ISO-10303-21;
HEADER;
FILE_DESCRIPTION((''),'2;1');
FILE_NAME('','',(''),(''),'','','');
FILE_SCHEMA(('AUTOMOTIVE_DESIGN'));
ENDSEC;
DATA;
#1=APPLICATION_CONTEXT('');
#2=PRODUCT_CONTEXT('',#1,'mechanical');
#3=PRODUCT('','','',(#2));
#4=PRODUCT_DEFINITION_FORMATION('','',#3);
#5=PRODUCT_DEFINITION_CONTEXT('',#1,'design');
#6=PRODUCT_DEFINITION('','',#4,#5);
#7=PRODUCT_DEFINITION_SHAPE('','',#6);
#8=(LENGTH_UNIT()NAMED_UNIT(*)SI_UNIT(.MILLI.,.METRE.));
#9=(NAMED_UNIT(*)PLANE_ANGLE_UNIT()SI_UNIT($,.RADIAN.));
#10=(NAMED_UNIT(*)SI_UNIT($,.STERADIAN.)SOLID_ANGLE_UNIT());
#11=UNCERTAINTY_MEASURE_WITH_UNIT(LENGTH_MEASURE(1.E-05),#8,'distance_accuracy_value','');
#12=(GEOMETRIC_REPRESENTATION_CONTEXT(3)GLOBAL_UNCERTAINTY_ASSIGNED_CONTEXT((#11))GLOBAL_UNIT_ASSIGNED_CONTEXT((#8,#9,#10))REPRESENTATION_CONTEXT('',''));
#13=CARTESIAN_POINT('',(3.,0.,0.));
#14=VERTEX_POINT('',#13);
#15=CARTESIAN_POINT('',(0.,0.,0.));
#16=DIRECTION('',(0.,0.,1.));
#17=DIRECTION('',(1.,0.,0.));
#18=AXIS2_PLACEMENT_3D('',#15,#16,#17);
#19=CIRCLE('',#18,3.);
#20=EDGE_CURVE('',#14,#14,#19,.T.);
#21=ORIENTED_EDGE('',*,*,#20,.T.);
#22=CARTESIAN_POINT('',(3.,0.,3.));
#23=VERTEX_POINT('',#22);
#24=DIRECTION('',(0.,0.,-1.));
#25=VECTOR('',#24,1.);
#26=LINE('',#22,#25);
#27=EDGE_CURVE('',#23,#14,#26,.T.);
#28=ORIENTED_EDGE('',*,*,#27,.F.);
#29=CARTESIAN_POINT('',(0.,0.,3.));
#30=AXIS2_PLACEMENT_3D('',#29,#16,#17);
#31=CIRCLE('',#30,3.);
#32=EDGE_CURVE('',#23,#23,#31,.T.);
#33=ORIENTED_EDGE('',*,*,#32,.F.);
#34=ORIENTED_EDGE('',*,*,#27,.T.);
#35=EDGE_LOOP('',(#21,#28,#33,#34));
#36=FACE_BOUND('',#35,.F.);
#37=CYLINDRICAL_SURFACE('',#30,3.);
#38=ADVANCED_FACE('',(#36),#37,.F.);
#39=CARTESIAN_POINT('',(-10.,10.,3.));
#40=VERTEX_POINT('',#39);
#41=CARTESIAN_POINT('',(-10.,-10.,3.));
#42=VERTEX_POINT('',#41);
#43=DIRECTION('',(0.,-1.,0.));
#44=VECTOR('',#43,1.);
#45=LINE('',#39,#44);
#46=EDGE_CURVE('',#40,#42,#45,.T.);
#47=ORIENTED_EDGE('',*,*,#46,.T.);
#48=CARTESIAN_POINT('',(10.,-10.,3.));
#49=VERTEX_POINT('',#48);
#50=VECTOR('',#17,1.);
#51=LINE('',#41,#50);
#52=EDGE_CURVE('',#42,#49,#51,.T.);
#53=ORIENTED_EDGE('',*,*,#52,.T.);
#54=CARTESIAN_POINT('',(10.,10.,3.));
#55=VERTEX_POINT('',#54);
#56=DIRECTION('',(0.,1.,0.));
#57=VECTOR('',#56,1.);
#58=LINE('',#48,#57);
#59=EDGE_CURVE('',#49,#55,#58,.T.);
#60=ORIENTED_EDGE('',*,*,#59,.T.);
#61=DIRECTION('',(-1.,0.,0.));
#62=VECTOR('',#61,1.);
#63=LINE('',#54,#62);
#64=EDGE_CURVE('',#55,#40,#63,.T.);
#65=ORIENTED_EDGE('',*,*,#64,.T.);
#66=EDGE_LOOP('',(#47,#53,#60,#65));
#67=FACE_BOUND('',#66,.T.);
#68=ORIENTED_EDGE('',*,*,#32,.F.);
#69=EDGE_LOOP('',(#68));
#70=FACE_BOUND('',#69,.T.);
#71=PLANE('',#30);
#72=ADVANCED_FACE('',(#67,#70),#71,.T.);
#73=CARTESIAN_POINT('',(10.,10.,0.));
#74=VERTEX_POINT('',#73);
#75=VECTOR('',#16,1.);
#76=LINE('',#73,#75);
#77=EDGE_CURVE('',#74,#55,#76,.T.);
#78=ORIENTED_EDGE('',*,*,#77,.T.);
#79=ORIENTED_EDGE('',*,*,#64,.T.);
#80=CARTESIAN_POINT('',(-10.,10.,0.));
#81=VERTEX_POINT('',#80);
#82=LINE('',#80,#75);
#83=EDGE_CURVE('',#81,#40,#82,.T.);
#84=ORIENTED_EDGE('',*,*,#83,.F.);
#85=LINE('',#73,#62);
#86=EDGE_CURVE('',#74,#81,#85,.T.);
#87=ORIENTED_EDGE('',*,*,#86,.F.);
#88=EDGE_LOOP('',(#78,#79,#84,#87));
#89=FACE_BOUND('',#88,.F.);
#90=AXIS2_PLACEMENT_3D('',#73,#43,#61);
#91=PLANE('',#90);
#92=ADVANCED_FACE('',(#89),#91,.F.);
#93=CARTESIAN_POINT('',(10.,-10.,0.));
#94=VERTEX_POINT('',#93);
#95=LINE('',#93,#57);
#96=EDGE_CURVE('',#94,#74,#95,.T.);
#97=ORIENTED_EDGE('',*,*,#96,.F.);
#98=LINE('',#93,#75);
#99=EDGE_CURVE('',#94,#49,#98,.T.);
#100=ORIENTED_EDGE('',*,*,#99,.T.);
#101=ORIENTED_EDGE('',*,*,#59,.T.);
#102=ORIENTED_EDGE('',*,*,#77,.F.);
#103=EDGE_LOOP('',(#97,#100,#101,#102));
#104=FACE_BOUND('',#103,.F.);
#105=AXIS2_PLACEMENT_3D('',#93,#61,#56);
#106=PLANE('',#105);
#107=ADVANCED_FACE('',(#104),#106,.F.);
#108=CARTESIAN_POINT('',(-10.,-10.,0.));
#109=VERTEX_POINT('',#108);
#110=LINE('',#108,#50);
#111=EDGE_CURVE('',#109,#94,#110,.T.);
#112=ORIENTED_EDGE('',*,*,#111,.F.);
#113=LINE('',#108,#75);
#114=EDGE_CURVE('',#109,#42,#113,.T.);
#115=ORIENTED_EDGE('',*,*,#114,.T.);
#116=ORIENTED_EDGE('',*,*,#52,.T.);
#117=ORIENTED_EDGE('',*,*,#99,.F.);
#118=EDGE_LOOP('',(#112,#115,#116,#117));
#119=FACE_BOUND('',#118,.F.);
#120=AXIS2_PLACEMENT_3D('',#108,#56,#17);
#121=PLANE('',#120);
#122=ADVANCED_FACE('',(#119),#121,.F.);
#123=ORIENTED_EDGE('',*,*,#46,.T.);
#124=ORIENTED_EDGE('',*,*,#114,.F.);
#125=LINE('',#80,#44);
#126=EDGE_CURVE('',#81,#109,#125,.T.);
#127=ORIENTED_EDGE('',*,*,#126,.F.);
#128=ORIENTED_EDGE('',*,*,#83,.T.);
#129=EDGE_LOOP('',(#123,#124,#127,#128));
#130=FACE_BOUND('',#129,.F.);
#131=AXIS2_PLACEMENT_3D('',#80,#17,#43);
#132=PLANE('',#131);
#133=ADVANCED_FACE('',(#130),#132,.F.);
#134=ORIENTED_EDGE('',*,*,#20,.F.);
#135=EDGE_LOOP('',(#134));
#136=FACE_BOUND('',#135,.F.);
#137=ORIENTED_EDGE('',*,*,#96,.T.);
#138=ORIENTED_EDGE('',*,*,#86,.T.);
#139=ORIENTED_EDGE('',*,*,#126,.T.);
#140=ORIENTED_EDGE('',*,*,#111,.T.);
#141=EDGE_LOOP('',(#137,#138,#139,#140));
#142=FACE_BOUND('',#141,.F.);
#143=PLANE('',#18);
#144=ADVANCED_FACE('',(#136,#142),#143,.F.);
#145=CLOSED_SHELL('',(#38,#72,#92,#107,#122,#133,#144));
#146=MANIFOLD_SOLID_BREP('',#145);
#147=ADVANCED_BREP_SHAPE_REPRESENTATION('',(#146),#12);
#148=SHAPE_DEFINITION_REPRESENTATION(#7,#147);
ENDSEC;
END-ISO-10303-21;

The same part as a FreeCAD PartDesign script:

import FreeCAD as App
import Part
import Sketcher

V = App.Vector


def add_polygon(sketch, points):
    """Adds a closed chain of lines whose ends are joined by coincident constraints."""
    first, n = sketch.GeometryCount, len(points)
    for a, b in zip(points, points[1:] + points[:1]):
        sketch.addGeometry(Part.LineSegment(App.Vector(*a, 0), App.Vector(*b, 0)), False)
    for i in range(n):
        sketch.addConstraint(Sketcher.Constraint("Coincident", first + i, 2, first + (i + 1) % n, 1))

doc = App.newDocument("Part")
body = doc.addObject("PartDesign::Body", "Body")

# Sketch on XY plane
sketch1 = body.newObject("Sketcher::SketchObject", "Sketch")
sketch1.AttachmentSupport = (doc.getObject("XY_Plane"), [""])
sketch1.MapMode = "FlatFace"
add_polygon(sketch1, [(-10, 10), (-10, -10), (10, -10), (10, 10)])  # lines 0-3
sketch1.addConstraint([
    Sketcher.Constraint("Vertical", 0),
    Sketcher.Constraint("Horizontal", 1),
    Sketcher.Constraint("Vertical", 2),
    Sketcher.Constraint("Horizontal", 3),
    Sketcher.Constraint("Symmetric", 0, 2, 2, 2, -1, 1),
    Sketcher.Constraint("Equal", 3, 0),
    Sketcher.Constraint("DistanceX", 1, 1, 1, 2, 20.0),
])
pad1 = body.newObject("PartDesign::Pad", "Pad")
pad1.Profile = sketch1
pad1.Length = 3

# Sketch on XY plane
sketch2 = body.newObject("Sketcher::SketchObject", "Sketch001")
sketch2.AttachmentSupport = (doc.getObject("XY_Plane"), [""])
sketch2.MapMode = "FlatFace"
sketch2.AttachmentOffset = App.Placement(V(0, 0, 3), App.Rotation())
sketch2.addGeometry(Part.Circle(V(0, 0, 0), V(0, 0, 1), 3), False)
sketch2.addConstraint([
    Sketcher.Constraint("Coincident", 0, 3, -1, 1),
    Sketcher.Constraint("Diameter", 0, 6.0),
])
pocket1 = body.newObject("PartDesign::Pocket", "Pocket")
pocket1.Profile = sketch2
pocket1.Length = 3

doc.recompute()
